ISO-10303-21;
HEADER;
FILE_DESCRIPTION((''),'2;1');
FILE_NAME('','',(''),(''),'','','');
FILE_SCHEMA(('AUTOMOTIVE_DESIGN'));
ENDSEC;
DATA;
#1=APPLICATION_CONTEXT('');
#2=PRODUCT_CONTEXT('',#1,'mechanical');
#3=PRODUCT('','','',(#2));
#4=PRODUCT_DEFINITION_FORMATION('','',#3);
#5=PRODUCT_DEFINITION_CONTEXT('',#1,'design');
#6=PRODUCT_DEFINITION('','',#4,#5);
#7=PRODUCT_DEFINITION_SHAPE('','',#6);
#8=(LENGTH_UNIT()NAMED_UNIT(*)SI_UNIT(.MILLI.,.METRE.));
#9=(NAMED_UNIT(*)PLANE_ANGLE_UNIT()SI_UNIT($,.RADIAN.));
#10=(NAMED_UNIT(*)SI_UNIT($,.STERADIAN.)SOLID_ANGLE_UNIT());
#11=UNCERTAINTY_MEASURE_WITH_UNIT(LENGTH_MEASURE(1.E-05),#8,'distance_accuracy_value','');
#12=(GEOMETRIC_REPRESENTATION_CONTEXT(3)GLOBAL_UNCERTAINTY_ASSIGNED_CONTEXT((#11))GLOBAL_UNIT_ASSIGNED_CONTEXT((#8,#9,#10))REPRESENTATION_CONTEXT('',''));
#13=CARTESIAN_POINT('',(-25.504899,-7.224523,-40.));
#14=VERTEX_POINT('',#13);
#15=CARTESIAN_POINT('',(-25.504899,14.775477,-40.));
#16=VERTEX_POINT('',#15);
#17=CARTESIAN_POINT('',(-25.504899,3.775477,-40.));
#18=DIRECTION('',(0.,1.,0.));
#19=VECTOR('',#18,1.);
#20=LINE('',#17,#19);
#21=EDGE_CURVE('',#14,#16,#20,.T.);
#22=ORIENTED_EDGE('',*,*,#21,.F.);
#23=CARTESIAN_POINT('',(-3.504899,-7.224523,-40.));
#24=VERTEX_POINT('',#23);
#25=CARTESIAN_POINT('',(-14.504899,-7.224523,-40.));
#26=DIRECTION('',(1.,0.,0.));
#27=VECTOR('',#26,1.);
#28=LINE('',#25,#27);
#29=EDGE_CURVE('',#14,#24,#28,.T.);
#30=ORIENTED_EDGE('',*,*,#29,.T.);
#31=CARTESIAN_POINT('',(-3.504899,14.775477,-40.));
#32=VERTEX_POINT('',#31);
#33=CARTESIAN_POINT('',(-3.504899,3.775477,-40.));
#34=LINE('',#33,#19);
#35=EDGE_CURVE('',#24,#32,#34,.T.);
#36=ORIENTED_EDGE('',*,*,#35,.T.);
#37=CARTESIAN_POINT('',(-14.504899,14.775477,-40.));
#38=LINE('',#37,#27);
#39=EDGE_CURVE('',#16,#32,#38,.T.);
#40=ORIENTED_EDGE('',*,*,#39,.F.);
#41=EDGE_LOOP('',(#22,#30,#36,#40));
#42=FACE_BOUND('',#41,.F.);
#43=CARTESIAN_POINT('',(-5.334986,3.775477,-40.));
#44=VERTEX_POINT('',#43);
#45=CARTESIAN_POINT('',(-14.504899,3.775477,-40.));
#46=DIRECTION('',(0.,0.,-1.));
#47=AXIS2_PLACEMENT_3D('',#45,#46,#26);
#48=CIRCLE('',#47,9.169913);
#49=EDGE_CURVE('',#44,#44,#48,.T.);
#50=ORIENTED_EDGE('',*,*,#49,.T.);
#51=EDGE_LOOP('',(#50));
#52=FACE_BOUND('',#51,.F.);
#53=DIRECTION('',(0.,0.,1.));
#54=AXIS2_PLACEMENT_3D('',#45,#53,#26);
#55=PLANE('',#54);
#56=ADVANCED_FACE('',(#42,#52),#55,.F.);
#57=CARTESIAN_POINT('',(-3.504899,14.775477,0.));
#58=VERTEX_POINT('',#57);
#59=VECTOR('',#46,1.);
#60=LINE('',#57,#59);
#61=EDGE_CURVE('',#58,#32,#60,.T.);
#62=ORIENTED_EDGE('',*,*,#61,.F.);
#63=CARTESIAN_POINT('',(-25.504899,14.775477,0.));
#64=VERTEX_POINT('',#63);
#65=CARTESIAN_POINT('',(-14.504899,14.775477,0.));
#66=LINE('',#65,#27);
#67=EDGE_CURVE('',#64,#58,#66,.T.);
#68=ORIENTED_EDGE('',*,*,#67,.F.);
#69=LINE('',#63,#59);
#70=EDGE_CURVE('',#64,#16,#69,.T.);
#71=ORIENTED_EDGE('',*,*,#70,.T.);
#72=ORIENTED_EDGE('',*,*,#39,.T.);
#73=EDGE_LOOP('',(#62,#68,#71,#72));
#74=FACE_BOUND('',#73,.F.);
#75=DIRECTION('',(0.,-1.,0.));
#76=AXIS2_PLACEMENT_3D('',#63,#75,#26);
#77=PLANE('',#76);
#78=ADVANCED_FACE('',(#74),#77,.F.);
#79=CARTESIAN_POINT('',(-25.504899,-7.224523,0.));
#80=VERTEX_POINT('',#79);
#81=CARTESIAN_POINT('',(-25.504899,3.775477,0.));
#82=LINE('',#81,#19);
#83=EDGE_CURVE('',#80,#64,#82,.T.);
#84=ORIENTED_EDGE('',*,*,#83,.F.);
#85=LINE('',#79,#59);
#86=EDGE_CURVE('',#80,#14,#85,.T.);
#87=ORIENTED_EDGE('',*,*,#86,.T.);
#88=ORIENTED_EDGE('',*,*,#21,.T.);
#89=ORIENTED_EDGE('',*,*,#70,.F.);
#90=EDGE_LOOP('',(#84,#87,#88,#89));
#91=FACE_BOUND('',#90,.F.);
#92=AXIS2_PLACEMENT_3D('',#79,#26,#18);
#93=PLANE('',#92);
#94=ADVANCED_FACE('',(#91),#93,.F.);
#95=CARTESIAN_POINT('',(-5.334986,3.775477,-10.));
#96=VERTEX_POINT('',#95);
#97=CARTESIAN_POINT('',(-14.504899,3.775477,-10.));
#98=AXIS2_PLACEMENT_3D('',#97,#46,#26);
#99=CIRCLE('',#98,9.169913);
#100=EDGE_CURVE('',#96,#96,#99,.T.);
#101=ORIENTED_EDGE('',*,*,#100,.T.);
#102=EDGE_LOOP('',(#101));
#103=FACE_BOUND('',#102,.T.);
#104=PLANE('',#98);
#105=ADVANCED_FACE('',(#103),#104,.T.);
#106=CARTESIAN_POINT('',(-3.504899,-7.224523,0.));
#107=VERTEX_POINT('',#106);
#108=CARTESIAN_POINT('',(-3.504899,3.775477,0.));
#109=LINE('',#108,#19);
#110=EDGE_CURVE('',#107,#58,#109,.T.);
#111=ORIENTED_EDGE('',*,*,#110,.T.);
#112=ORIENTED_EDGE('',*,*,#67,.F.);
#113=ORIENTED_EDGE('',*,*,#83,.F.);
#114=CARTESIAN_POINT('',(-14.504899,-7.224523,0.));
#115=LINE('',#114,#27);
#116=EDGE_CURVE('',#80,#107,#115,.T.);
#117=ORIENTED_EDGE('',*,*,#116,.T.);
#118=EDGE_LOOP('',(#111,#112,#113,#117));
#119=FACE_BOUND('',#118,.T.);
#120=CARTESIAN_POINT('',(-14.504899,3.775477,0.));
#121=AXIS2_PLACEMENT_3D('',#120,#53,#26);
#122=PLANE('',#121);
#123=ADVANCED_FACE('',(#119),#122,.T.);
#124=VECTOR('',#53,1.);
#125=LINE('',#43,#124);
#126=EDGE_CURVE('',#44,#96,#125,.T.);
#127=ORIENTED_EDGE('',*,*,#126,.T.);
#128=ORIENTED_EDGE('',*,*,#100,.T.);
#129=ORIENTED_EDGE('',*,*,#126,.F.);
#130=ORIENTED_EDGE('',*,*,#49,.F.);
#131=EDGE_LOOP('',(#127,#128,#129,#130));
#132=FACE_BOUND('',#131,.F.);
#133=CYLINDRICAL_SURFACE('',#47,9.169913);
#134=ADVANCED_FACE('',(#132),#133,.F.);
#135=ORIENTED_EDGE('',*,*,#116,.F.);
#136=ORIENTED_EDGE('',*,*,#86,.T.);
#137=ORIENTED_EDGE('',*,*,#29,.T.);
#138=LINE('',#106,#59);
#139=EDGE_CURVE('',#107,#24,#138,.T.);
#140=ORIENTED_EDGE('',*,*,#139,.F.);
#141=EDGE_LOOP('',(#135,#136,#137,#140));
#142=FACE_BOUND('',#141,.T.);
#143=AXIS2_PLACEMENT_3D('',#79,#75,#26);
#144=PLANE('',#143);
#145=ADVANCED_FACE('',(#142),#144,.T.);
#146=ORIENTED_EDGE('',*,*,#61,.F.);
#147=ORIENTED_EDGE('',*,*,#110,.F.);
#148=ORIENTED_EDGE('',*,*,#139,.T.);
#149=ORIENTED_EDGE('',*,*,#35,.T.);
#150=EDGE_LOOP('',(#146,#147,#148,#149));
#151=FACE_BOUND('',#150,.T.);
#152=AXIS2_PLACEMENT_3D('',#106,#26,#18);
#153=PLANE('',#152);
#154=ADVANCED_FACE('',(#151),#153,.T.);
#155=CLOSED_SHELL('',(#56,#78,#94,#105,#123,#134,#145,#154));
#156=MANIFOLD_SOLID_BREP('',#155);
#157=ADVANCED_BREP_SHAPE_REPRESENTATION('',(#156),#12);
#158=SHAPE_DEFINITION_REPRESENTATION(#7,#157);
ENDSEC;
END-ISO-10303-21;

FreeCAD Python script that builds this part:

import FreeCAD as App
import Part
import Sketcher

V = App.Vector

doc = App.newDocument("Part")
body = doc.addObject("PartDesign::Body", "Body")

# Sketch on XY plane
sketch1 = body.newObject("Sketcher::SketchObject", "Sketch")
sketch1.AttachmentSupport = (doc.getObject("XY_Plane"), [""])
sketch1.MapMode = "FlatFace"
sketch1.addGeometry([
    Part.LineSegment(V(-25.504899, 14.775477, 0), V(-25.504899, -7.224523, 0)),
    Part.LineSegment(V(-25.504899, -7.224523, 0), V(-3.504899, -7.224523, 0)),
    Part.LineSegment(V(-3.504899, -7.224523, 0), V(-3.504899, 14.775477, 0)),
    Part.LineSegment(V(-3.504899, 14.775477, 0), V(-25.504899, 14.775477, 0)),
], False)
sketch1.addConstraint([
    Sketcher.Constraint("Coincident", 0, 2, 1, 1),
    Sketcher.Constraint("Coincident", 1, 2, 2, 1),
    Sketcher.Constraint("Coincident", 2, 2, 3, 1),
    Sketcher.Constraint("Coincident", 3, 2, 0, 1),
    Sketcher.Constraint("Vertical", 0),
    Sketcher.Constraint("Horizontal", 1),
    Sketcher.Constraint("Vertical", 2),
    Sketcher.Constraint("Horizontal", 3),
    Sketcher.Constraint("Equal", 3, 0),
    Sketcher.Constraint("DistanceX", 1, 1, 1, 2, 22.0),
    Sketcher.Constraint("DistanceX", 0, 2, -1, 1, 25.504899),
    Sketcher.Constraint("DistanceY", 0, 2, -1, 1, 7.224523),
])
pad1 = body.newObject("PartDesign::Pad", "Pad")
pad1.Profile = sketch1
pad1.Length = 40
pad1.Reversed = True

# Sketch on XY plane
sketch2 = body.newObject("Sketcher::SketchObject", "Sketch001")
sketch2.AttachmentSupport = (doc.getObject("XY_Plane"), [""])
sketch2.MapMode = "FlatFace"
sketch2.AttachmentOffset = App.Placement(V(0, 0, -40), App.Rotation())
sketch2.addGeometry(Part.Circle(V(-14.504899, 3.775477, 0), V(0, 0, 1), 9.169913), False)
sketch2.addConstraint([
    Sketcher.Constraint("Diameter", 0, 18.339826),
    Sketcher.Constraint("DistanceX", 0, 3, -1, 1, 14.504899),
    Sketcher.Constraint("DistanceY", -1, 1, 0, 3, 3.775477),
])
pocket1 = body.newObject("PartDesign::Pocket", "Pocket")
pocket1.Profile = sketch2
pocket1.Length = 30
pocket1.Reversed = True

doc.recompute()
